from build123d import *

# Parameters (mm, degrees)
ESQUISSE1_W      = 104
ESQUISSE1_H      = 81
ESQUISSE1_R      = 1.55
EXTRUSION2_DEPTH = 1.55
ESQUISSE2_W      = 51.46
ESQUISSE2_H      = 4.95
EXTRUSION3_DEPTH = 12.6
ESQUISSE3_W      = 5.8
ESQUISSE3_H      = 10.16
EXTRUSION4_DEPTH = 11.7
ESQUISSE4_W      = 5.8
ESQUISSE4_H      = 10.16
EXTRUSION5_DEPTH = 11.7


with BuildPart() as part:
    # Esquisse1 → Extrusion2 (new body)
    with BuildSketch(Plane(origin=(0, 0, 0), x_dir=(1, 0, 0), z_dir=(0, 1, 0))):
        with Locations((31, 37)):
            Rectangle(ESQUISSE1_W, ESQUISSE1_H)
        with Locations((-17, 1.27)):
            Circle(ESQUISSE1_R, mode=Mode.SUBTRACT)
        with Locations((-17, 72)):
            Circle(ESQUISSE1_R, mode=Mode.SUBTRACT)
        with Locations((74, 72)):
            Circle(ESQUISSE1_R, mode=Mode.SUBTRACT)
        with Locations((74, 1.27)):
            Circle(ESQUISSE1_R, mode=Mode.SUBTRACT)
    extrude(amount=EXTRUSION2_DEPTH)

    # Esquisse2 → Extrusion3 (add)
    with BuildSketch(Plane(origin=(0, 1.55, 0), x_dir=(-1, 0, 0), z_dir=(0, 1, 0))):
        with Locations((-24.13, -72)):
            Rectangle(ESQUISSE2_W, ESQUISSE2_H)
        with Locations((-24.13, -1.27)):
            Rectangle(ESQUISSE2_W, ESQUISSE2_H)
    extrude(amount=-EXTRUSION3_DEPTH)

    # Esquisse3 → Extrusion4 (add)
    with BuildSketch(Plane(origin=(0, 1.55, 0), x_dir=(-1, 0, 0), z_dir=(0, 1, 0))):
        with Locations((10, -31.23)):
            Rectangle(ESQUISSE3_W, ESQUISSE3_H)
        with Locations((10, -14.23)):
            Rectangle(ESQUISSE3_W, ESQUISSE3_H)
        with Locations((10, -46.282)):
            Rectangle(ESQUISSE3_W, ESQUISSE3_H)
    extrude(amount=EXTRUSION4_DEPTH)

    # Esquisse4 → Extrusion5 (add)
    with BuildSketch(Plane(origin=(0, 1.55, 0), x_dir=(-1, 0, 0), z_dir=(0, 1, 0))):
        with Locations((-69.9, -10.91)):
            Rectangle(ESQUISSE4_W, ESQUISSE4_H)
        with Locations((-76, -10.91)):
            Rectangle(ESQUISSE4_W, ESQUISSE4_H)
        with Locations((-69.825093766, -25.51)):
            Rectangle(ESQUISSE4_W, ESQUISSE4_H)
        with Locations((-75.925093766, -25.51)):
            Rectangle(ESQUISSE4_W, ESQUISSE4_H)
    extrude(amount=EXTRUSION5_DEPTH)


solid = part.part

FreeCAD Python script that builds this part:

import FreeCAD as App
import Part
import Sketcher
Q = App.Units.Quantity


def add_polygon(sketch, points):
    """Adds a closed chain of lines whose ends are joined by coincident constraints."""
    first, n = sketch.GeometryCount, len(points)
    for a, b in zip(points, points[1:] + points[:1]):
        sketch.addGeometry(Part.LineSegment(App.Vector(*a, 0), App.Vector(*b, 0)), False)
    for i in range(n):
        sketch.addConstraint(Sketcher.Constraint("Coincident", first + i, 2, first + (i + 1) % n, 1))

doc = App.newDocument("Part")
body = doc.addObject("PartDesign::Body", "Body")

sketch1 = doc.addObject("Sketcher::SketchObject", "Sketch")
body.addObject(sketch1)
sketch1.AttachmentSupport = (doc.XZ_Plane, [""])
sketch1.MapMode = "FlatFace"
add_polygon(sketch1, [(-21, -77.5), (-21, 3.5), (83, 3.5), (83, -77.5)])
sketch1.addGeometry(Part.Circle(App.Vector(-17, -1.3, 0), App.Vector(0, 0, 1), 1.6), False)
sketch1.addGeometry(Part.Circle(App.Vector(74, -1.3, 0), App.Vector(0, 0, 1), 1.6), False)
sketch1.addGeometry(Part.Circle(App.Vector(-17, -72, 0), App.Vector(0, 0, 1), 1.6), False)
sketch1.addGeometry(Part.Circle(App.Vector(74, -72, 0), App.Vector(0, 0, 1), 1.6), False)
sketch1.addConstraint([
    Sketcher.Constraint("Vertical", 0),
    Sketcher.Constraint("Horizontal", 1),
    Sketcher.Constraint("Vertical", 2),
    Sketcher.Constraint("Horizontal", 3),
    Sketcher.Constraint("Equal", 4, 5),
    Sketcher.Constraint("Equal", 5, 6),
    Sketcher.Constraint("Equal", 6, 7),
    Sketcher.Constraint("Horizontal", 4, 3, 5, 3),
    Sketcher.Constraint("Horizontal", 6, 3, 7, 3),
    Sketcher.Constraint("Vertical", 4, 3, 6, 3),
    Sketcher.Constraint("Vertical", 5, 3, 7, 3),
    Sketcher.Constraint("Diameter", 4, Q("3.1 mm")),
    Sketcher.Constraint("DistanceX", 1, 1, 1, 2, Q("104 mm")),
    Sketcher.Constraint("DistanceY", 0, 1, 0, 2, Q("81 mm")),
    Sketcher.Constraint("DistanceX", 4, 3, -1, 1, Q("17 mm")),
    Sketcher.Constraint("DistanceX", -1, 1, 5, 3, Q("74 mm")),
    Sketcher.Constraint("DistanceY", 6, 3, -1, 1, Q("72 mm")),
    Sketcher.Constraint("DistanceX", 0, 2, -1, 1, Q("21 mm")),
    Sketcher.Constraint("DistanceY", -1, 1, 0, 2, Q("3.5 mm")),
    Sketcher.Constraint("DistanceY", 4, 3, -1, 1, Q("1.27 mm")),
])
pad1 = doc.addObject("PartDesign::Pad", "Pad")
body.addObject(pad1)
pad1.Profile = sketch1
pad1.Length = 1.55
pad1.Reversed = True

sketch2 = doc.addObject("Sketcher::SketchObject", "Sketch001")
body.addObject(sketch2)
sketch2.AttachmentSupport = (doc.XZ_Plane, [""])
sketch2.MapMode = "FlatFace"
sketch2.AttachmentOffset = App.Placement(App.Vector(0, 0, -1.55), App.Rotation())
add_polygon(sketch2, [(49.9, -69.5), (49.9, -74.5), (-1.6, -74.5), (-1.6, -69.5)])
add_polygon(sketch2, [(49.9, 1.2), (49.9, -3.7), (-1.6, -3.7), (-1.6, 1.2)])
sketch2.addConstraint([
    Sketcher.Constraint("Vertical", 0),
    Sketcher.Constraint("Horizontal", 1),
    Sketcher.Constraint("Vertical", 2),
    Sketcher.Constraint("Horizontal", 3),
    Sketcher.Constraint("Vertical", 4),
    Sketcher.Constraint("Horizontal", 5),
    Sketcher.Constraint("Vertical", 6),
    Sketcher.Constraint("Horizontal", 7),
    Sketcher.Constraint("Vertical", 3, 2, 4, 2),
    Sketcher.Constraint("Vertical", 2, 2, 5, 2),
    Sketcher.Constraint("Equal", 2, 4),
    Sketcher.Constraint("DistanceX", 1, 2, 1, 1, Q("51.46 mm")),
    Sketcher.Constraint("DistanceY", 0, 2, 0, 1, Q("4.95 mm")),
    Sketcher.Constraint("DistanceX", 1, 2, -1, 1, Q("1.6 mm")),
    Sketcher.Constraint("DistanceY", 3, 2, 4, 2, Q("65.78 mm")),
    Sketcher.Constraint("DistanceY", 0, 2, -1, 1, Q("74.475 mm")),
])
pad2 = doc.addObject("PartDesign::Pad", "Pad001")
body.addObject(pad2)
pad2.Profile = sketch2
pad2.Length = 12.6

sketch3 = doc.addObject("Sketcher::SketchObject", "Sketch002")
body.addObject(sketch3)
sketch3.AttachmentSupport = (doc.XZ_Plane, [""])
sketch3.MapMode = "FlatFace"
sketch3.AttachmentOffset = App.Placement(App.Vector(0, 0, -1.55), App.Rotation())
add_polygon(sketch3, [(-7, -26), (-7, -36), (-13, -36), (-13, -26)])
add_polygon(sketch3, [(-7, -9), (-7, -19), (-13, -19), (-13, -9)])
add_polygon(sketch3, [(-7, -41), (-7, -51), (-13, -51), (-13, -41)])
sketch3.addConstraint([
    Sketcher.Constraint("Vertical", 0),
    Sketcher.Constraint("Horizontal", 1),
    Sketcher.Constraint("Vertical", 2),
    Sketcher.Constraint("Horizontal", 3),
    Sketcher.Constraint("Vertical", 4),
    Sketcher.Constraint("Horizontal", 5),
    Sketcher.Constraint("Vertical", 6),
    Sketcher.Constraint("Horizontal", 7),
    Sketcher.Constraint("Vertical", 8),
    Sketcher.Constraint("Horizontal", 9),
    Sketcher.Constraint("Vertical", 10),
    Sketcher.Constraint("Horizontal", 11),
    Sketcher.Constraint("Vertical", 3, 2, 4, 2),
    Sketcher.Constraint("Vertical", 2, 2, 5, 2),
    Sketcher.Constraint("Vertical", 7, 2, 8, 2),
    Sketcher.Constraint("Vertical", 6, 2, 9, 2),
    Sketcher.Constraint("Equal", 2, 4),
    Sketcher.Constraint("Equal", 6, 8),
    Sketcher.Constraint("DistanceX", 1, 2, 1, 1, Q("5.8 mm")),
    Sketcher.Constraint("DistanceY", 0, 2, 4, 2, Q("17 mm")),
    Sketcher.Constraint("DistanceY", 0, 2, 0, 1, Q("10.16 mm")),
    Sketcher.Constraint("DistanceX", 0, 2, -1, 1, Q("7.1 mm")),
    Sketcher.Constraint("DistanceY", 0, 2, -1, 1, Q("36.31 mm")),
    Sketcher.Constraint("DistanceY", 8, 2, -1, 1, Q("51.362 mm")),
])
pad3 = doc.addObject("PartDesign::Pad", "Pad002")
body.addObject(pad3)
pad3.Profile = sketch3
pad3.Length = 11.7
pad3.Reversed = True

sketch4 = doc.addObject("Sketcher::SketchObject", "Sketch003")
body.addObject(sketch4)
sketch4.AttachmentSupport = (doc.XZ_Plane, [""])
sketch4.MapMode = "FlatFace"
sketch4.AttachmentOffset = App.Placement(App.Vector(0, 0, -1.55), App.Rotation())
add_polygon(sketch4, [(73, -6), (73, -16), (67, -16), (67, -6)])
add_polygon(sketch4, [(79, -6), (79, -16), (73, -16), (73, -6)])
add_polygon(sketch4, [(73, -20), (73, -31), (67, -31), (67, -20)])
add_polygon(sketch4, [(79, -20), (79, -31), (73, -31), (73, -20)])
sketch4.addConstraint([
    Sketcher.Constraint("Vertical", 0),
    Sketcher.Constraint("Horizontal", 1),
    Sketcher.Constraint("Vertical", 2),
    Sketcher.Constraint("Horizontal", 3),
    Sketcher.Constraint("Vertical", 4),
    Sketcher.Constraint("Horizontal", 5),
    Sketcher.Constraint("Vertical", 6),
    Sketcher.Constraint("Horizontal", 7),
    Sketcher.Constraint("Vertical", 8),
    Sketcher.Constraint("Horizontal", 9),
    Sketcher.Constraint("Vertical", 10),
    Sketcher.Constraint("Horizontal", 11),
    Sketcher.Constraint("Vertical", 12),
    Sketcher.Constraint("Horizontal", 13),
    Sketcher.Constraint("Vertical", 14),
    Sketcher.Constraint("Horizontal", 15),
    Sketcher.Constraint("Horizontal", 1, 2, 4, 2),
    Sketcher.Constraint("Horizontal", 3, 2, 6, 2),
    Sketcher.Constraint("Horizontal", 9, 2, 12, 2),
    Sketcher.Constraint("Horizontal", 11, 2, 14, 2),
    Sketcher.Constraint("Equal", 3, 5),
    Sketcher.Constraint("Equal", 7, 9),
    Sketcher.Constraint("Equal", 11, 13),
    Sketcher.Constraint("Equal", 6, 8),
    Sketcher.Constraint("DistanceX", 1, 2, 1, 1, Q("5.8 mm")),
    Sketcher.Constraint("DistanceX", -1, 1, 1, 2, Q("67 mm")),
    Sketcher.Constraint("DistanceY", 0, 2, 0, 1, Q("10.16 mm")),
    Sketcher.Constraint("DistanceX", -1, 1, 4, 2, Q("78.9 mm")),
    Sketcher.Constraint("DistanceY", 8, 2, 0, 2, Q("14.6 mm")),
    Sketcher.Constraint("DistanceX", 8, 2, 12, 2, Q("6.1 mm")),
    Sketcher.Constraint("DistanceY", 0, 2, -1, 1, Q("15.99 mm")),
    Sketcher.Constraint("DistanceX", -1, 1, 8, 2, Q("72.725094 mm")),
])
pad4 = doc.addObject("PartDesign::Pad", "Pad003")
body.addObject(pad4)
pad4.Profile = sketch4
pad4.Length = 11.7
pad4.Reversed = True

doc.recompute()
